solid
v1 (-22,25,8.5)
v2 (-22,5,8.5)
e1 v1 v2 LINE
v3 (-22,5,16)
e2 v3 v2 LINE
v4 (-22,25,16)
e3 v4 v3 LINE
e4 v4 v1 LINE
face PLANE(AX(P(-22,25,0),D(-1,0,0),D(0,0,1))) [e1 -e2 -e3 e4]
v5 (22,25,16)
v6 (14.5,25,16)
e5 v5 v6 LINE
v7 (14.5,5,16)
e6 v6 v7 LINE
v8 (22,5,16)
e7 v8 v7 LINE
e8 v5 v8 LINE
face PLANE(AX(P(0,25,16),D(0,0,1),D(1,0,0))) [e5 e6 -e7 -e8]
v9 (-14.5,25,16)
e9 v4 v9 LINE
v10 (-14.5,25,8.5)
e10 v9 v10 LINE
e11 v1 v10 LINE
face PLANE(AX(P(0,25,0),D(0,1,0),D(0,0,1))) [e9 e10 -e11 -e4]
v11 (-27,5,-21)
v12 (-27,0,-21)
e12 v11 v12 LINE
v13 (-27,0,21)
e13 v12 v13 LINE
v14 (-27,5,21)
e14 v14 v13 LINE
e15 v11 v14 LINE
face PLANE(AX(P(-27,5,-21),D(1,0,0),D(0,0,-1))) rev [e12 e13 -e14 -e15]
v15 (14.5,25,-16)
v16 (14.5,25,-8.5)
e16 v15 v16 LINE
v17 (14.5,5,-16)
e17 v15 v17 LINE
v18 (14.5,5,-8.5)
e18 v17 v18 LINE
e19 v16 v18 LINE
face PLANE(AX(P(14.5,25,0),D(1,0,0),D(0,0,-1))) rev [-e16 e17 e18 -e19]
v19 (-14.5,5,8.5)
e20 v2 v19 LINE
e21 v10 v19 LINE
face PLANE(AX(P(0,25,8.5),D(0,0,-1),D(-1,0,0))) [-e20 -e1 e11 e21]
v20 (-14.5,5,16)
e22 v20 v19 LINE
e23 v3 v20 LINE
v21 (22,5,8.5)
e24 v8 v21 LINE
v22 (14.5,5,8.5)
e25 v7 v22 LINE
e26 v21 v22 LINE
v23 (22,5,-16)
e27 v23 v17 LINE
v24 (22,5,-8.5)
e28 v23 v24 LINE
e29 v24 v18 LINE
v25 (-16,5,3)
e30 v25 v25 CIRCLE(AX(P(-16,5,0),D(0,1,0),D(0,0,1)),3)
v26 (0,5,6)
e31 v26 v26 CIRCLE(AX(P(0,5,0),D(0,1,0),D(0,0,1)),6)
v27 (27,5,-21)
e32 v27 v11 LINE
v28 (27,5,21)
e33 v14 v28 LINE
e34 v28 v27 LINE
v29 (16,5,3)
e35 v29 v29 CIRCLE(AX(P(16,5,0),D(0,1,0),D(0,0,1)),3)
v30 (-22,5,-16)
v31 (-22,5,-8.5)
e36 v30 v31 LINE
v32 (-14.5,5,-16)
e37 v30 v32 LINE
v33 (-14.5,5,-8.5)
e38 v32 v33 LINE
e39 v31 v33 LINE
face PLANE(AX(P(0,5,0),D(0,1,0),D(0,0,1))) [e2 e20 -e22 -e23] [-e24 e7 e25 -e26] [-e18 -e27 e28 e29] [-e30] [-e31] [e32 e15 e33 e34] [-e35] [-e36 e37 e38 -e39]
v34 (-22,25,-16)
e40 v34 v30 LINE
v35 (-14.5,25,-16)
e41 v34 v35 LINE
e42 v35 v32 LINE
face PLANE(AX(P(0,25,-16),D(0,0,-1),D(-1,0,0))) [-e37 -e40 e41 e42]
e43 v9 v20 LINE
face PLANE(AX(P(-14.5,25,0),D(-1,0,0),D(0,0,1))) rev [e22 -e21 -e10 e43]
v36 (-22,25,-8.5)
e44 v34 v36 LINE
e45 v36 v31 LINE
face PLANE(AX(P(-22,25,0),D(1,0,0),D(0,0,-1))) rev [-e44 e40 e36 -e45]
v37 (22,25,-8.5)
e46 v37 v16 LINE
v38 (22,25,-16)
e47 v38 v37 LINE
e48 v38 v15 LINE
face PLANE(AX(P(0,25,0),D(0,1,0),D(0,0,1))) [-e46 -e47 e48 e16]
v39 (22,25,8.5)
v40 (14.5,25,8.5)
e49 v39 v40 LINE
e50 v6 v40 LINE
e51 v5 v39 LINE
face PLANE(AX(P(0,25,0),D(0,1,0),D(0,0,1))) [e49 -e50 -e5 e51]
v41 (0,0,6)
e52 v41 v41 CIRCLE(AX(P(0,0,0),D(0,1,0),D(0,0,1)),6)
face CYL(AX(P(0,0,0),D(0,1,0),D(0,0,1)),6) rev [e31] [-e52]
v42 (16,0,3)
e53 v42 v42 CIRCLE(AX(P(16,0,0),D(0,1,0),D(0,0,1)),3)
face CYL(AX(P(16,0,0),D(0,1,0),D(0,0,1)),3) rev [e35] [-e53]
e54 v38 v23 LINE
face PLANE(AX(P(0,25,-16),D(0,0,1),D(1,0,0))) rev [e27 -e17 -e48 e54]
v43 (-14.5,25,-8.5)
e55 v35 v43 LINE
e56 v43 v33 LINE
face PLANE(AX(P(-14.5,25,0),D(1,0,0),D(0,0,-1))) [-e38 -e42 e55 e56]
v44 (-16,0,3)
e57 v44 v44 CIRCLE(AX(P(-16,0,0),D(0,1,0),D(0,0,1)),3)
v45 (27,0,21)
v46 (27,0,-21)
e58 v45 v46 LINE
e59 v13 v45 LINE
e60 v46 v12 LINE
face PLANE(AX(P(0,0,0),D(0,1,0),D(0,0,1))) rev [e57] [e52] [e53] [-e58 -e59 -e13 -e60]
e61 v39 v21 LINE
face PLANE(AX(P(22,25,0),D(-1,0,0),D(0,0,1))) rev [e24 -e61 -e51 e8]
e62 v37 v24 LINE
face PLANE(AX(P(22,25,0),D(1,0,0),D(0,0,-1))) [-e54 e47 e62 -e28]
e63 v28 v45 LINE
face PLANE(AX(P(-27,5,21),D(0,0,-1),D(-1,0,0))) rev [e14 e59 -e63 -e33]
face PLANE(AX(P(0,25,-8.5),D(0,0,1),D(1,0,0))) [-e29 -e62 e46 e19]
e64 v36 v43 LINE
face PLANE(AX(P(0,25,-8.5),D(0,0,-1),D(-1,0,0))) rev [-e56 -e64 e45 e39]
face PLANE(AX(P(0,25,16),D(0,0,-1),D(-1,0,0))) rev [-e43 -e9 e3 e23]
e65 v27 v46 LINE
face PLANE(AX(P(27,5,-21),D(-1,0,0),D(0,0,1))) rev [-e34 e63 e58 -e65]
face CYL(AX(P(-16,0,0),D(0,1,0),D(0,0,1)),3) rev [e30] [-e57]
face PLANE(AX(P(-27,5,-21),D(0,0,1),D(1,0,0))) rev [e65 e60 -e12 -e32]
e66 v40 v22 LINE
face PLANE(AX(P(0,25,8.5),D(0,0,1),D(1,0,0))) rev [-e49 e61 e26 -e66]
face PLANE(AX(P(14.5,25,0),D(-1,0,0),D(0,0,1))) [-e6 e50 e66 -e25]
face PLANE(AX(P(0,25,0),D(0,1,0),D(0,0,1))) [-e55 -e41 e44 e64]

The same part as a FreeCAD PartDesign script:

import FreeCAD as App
import Part
import Sketcher

doc = App.newDocument("Part")
body = doc.addObject("PartDesign::Body", "Body")

# Sketch on XZ plane
sketch1 = doc.addObject("Sketcher::SketchObject", "Sketch")
body.addObject(sketch1)
sketch1.AttachmentSupport = (doc.XZ_Plane, [""])
sketch1.MapMode = "FlatFace"
sketch1.addGeometry([
    Part.LineSegment(App.Vector(-27, -21, 0), App.Vector(-27, 21, 0)),
    Part.LineSegment(App.Vector(-27, 21, 0), App.Vector(27, 21, 0)),
    Part.LineSegment(App.Vector(27, 21, 0), App.Vector(27, -21, 0)),
    Part.LineSegment(App.Vector(27, -21, 0), App.Vector(-27, -21, 0)),
], False)
sketch1.addConstraint([
    Sketcher.Constraint("Coincident", 0, 2, 1, 1),
    Sketcher.Constraint("Coincident", 1, 2, 2, 1),
    Sketcher.Constraint("Coincident", 2, 2, 3, 1),
    Sketcher.Constraint("Coincident", 3, 2, 0, 1),
    Sketcher.Constraint("Vertical", 0),
    Sketcher.Constraint("Horizontal", 1),
    Sketcher.Constraint("Vertical", 2),
    Sketcher.Constraint("Horizontal", 3),
    Sketcher.Constraint("Symmetric", 0, 2, 2, 2, -1, 1),
    Sketcher.Constraint("DistanceX", 1, 1, 1, 2, 54.0),
    Sketcher.Constraint("DistanceY", 0, 1, 0, 2, 42.0),
])
pad1 = doc.addObject("PartDesign::Pad", "Pad")
body.addObject(pad1)
pad1.Profile = sketch1
pad1.Length = 5
pad1.Reversed = True

# Sketch on XZ plane
sketch2 = doc.addObject("Sketcher::SketchObject", "Sketch001")
body.addObject(sketch2)
sketch2.AttachmentSupport = (doc.XZ_Plane, [""])
sketch2.MapMode = "FlatFace"
sketch2.AttachmentOffset = App.Placement(App.Vector(0, 0, -5), App.Rotation())
sketch2.addGeometry([
    Part.Circle(App.Vector(0, 0, 0), App.Vector(0, 0, 1), 6),
    Part.Circle(App.Vector(-16, 0, 0), App.Vector(0, 0, 1), 3),
    Part.Circle(App.Vector(16, 0, 0), App.Vector(0, 0, 1), 3),
], False)
sketch2.addConstraint([
    Sketcher.Constraint("Coincident", 0, 3, -1, 1),
    Sketcher.Constraint("Equal", 1, 2),
    Sketcher.Constraint("Symmetric", 1, 3, 2, 3, -1, 1),
    Sketcher.Constraint("PointOnObject", 1, 3, -1),
    Sketcher.Constraint("Diameter", 0, 12.0),
    Sketcher.Constraint("Diameter", 1, 6.0),
    Sketcher.Constraint("DistanceX", 1, 3, -1, 1, 16.0),
])
pocket1 = doc.addObject("PartDesign::Pocket", "Pocket")
body.addObject(pocket1)
pocket1.Profile = sketch2
pocket1.Length = 5
pocket1.Reversed = True

# Sketch on XZ plane
sketch3 = doc.addObject("Sketcher::SketchObject", "Sketch002")
body.addObject(sketch3)
sketch3.AttachmentSupport = (doc.XZ_Plane, [""])
sketch3.MapMode = "FlatFace"
sketch3.AttachmentOffset = App.Placement(App.Vector(0, 0, -5), App.Rotation())
sketch3.addGeometry([
    Part.LineSegment(App.Vector(-22, -16, 0), App.Vector(-22, -8, 0)),  # 0
    Part.LineSegment(App.Vector(-22, -8, 0), App.Vector(-14, -8, 0)),  # 1
    Part.LineSegment(App.Vector(-14, -8, 0), App.Vector(-14, -16, 0)),  # 2
    Part.LineSegment(App.Vector(-14, -16, 0), App.Vector(-22, -16, 0)),  # 3
    Part.LineSegment(App.Vector(14, -16, 0), App.Vector(14, -8, 0)),  # 4
    Part.LineSegment(App.Vector(14, -8, 0), App.Vector(22, -8, 0)),  # 5
    Part.LineSegment(App.Vector(22, -8, 0), App.Vector(22, -16, 0)),  # 6
    Part.LineSegment(App.Vector(22, -16, 0), App.Vector(14, -16, 0)),  # 7
    Part.LineSegment(App.Vector(-22, 8, 0), App.Vector(-22, 16, 0)),  # 8
    Part.LineSegment(App.Vector(-22, 16, 0), App.Vector(-14, 16, 0)),  # 9
    Part.LineSegment(App.Vector(-14, 16, 0), App.Vector(-14, 8, 0)),  # 10
    Part.LineSegment(App.Vector(-14, 8, 0), App.Vector(-22, 8, 0)),  # 11
    Part.LineSegment(App.Vector(14, 8, 0), App.Vector(14, 16, 0)),  # 12
    Part.LineSegment(App.Vector(14, 16, 0), App.Vector(22, 16, 0)),  # 13
    Part.LineSegment(App.Vector(22, 16, 0), App.Vector(22, 8, 0)),  # 14
    Part.LineSegment(App.Vector(22, 8, 0), App.Vector(14, 8, 0)),  # 15
], False)
sketch3.addConstraint([
    Sketcher.Constraint("Coincident", 0, 2, 1, 1),
    Sketcher.Constraint("Coincident", 1, 2, 2, 1),
    Sketcher.Constraint("Coincident", 2, 2, 3, 1),
    Sketcher.Constraint("Coincident", 3, 2, 0, 1),
    Sketcher.Constraint("Coincident", 4, 2, 5, 1),
    Sketcher.Constraint("Coincident", 5, 2, 6, 1),
    Sketcher.Constraint("Coincident", 6, 2, 7, 1),
    Sketcher.Constraint("Coincident", 7, 2, 4, 1),
    Sketcher.Constraint("Coincident", 8, 2, 9, 1),
    Sketcher.Constraint("Coincident", 9, 2, 10, 1),
    Sketcher.Constraint("Coincident", 10, 2, 11, 1),
    Sketcher.Constraint("Coincident", 11, 2, 8, 1),
    Sketcher.Constraint("Coincident", 12, 2, 13, 1),
    Sketcher.Constraint("Coincident", 13, 2, 14, 1),
    Sketcher.Constraint("Coincident", 14, 2, 15, 1),
    Sketcher.Constraint("Coincident", 15, 2, 12, 1),
    Sketcher.Constraint("Vertical", 0),
    Sketcher.Constraint("Horizontal", 1),
    Sketcher.Constraint("Vertical", 2),
    Sketcher.Constraint("Horizontal", 3),
    Sketcher.Constraint("Vertical", 4),
    Sketcher.Constraint("Horizontal", 5),
    Sketcher.Constraint("Vertical", 6),
    Sketcher.Constraint("Horizontal", 7),
    Sketcher.Constraint("Vertical", 8),
    Sketcher.Constraint("Horizontal", 9),
    Sketcher.Constraint("Vertical", 10),
    Sketcher.Constraint("Horizontal", 11),
    Sketcher.Constraint("Vertical", 12),
    Sketcher.Constraint("Horizontal", 13),
    Sketcher.Constraint("Vertical", 14),
    Sketcher.Constraint("Horizontal", 15),
    Sketcher.Constraint("Symmetric", 6, 2, 8, 2, -1, 1),
    Sketcher.Constraint("Symmetric", 4, 2, 10, 2, -1, 1),
    Sketcher.Constraint("Symmetric", 2, 2, 12, 2, -1, 1),
    Sketcher.Constraint("Symmetric", 0, 2, 14, 2, -1, 1),
    Sketcher.Constraint("Symmetric", 1, 2, 4, 2, -2),
    Sketcher.Constraint("Symmetric", 3, 2, 6, 2, -2),
    Sketcher.Constraint("Equal", 15, 0),
    Sketcher.Constraint("DistanceX", 1, 1, 1, 2, 7.5),
    Sketcher.Constraint("DistanceX", 0, 2, -1, 1, 22.0),
    Sketcher.Constraint("DistanceY", 2, 2, -1, 1, 16.0),
])
pad2 = doc.addObject("PartDesign::Pad", "Pad001")
body.addObject(pad2)
pad2.Profile = sketch3
pad2.Length = 20
pad2.Reversed = True

doc.recompute()
